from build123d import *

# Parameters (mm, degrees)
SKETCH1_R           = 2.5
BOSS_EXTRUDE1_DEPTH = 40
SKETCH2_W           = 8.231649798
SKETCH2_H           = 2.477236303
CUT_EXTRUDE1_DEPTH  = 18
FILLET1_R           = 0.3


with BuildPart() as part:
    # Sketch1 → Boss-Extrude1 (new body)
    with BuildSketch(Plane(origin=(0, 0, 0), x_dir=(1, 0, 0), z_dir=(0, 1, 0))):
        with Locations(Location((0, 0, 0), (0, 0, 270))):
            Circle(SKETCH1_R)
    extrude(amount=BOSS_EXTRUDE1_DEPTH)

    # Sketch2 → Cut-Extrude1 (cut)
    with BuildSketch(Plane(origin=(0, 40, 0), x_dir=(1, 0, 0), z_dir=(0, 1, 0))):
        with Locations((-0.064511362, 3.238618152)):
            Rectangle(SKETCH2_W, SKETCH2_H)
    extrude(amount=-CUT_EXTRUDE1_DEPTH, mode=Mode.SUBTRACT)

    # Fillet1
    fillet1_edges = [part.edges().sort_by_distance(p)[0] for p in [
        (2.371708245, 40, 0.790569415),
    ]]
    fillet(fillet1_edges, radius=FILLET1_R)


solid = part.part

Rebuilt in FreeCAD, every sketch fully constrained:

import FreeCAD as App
import Part
import Sketcher
from FreeCAD import Vector


def edges_at(feature, points):
    """Names of the edges that pass closest to the given points."""
    edges = feature.Shape.Edges
    near = lambda p: min(range(len(edges)), key=lambda i: edges[i].distToShape(Part.Vertex(*p))[0])
    return sorted({f"Edge{near(p) + 1}" for p in points})

doc = App.newDocument("Part")
params = doc.addObject("Spreadsheet::Sheet", "Params")
for row, (alias, value) in enumerate([
    ("sketch1_diameter", "5 mm"),
    ("pad1_length", "40 mm"),
    ("pocket1_length", "18 mm"),
    ("fillet_radius", "0.3 mm"),
], start=1):
    params.set(f"A{row}", alias)
    params.set(f"B{row}", "=" + value)
    params.setAlias(f"B{row}", alias)

body = doc.addObject("PartDesign::Body", "Body")

# Sketch on XZ plane
sketch1 = doc.addObject("Sketcher::SketchObject", "Sketch")
body.addObject(sketch1)
sketch1.AttachmentSupport = (doc.XZ_Plane, [""])
sketch1.MapMode = "FlatFace"
sketch1.addGeometry(Part.Circle(Vector(0, 0, 0), Vector(0, 0, 1), 2.5), False)
sketch1.addConstraint(Sketcher.Constraint("Coincident", 0, 3, -1, 1))
sketch1.addConstraint(Sketcher.Constraint("Diameter", 0, 5.0))
sketch1.setExpression("Constraints[1]", "Params.sketch1_diameter")
pad1 = doc.addObject("PartDesign::Pad", "Pad")
body.addObject(pad1)
pad1.Profile = sketch1
pad1.setExpression("Length", "Params.pad1_length")
pad1.Reversed = True

# Sketch on XZ plane
sketch2 = doc.addObject("Sketcher::SketchObject", "Sketch001")
body.addObject(sketch2)
sketch2.AttachmentSupport = (doc.XZ_Plane, [""])
sketch2.MapMode = "FlatFace"
sketch2.AttachmentOffset = App.Placement(Vector(0, 0, -40), App.Rotation())
sketch2.addGeometry(Part.LineSegment(Vector(-4.2, -4.5, 0), Vector(-4.2, -2, 0)), False)
sketch2.addGeometry(Part.LineSegment(Vector(-4.2, -2, 0), Vector(4.1, -2, 0)), False)
sketch2.addGeometry(Part.LineSegment(Vector(4.1, -2, 0), Vector(4.1, -4.5, 0)), False)
sketch2.addGeometry(Part.LineSegment(Vector(4.1, -4.5, 0), Vector(-4.2, -4.5, 0)), False)
sketch2.addConstraint(Sketcher.Constraint("Coincident", 0, 2, 1, 1))
sketch2.addConstraint(Sketcher.Constraint("Coincident", 1, 2, 2, 1))
sketch2.addConstraint(Sketcher.Constraint("Coincident", 2, 2, 3, 1))
sketch2.addConstraint(Sketcher.Constraint("Coincident", 3, 2, 0, 1))
sketch2.addConstraint(Sketcher.Constraint("Vertical", 0))
sketch2.addConstraint(Sketcher.Constraint("Horizontal", 1))
sketch2.addConstraint(Sketcher.Constraint("Vertical", 2))
sketch2.addConstraint(Sketcher.Constraint("Horizontal", 3))
sketch2.addConstraint(Sketcher.Constraint("DistanceY", 0, 2, -1, 1, 2.0))
sketch2.addConstraint(Sketcher.Constraint("DistanceX", 1, 1, 1, 2, 8.23165))
sketch2.addConstraint(Sketcher.Constraint("DistanceY", 0, 1, 0, 2, 2.477236))
sketch2.addConstraint(Sketcher.Constraint("DistanceX", 0, 2, -1, 1, 4.180336))
pocket1 = doc.addObject("PartDesign::Pocket", "Pocket")
body.addObject(pocket1)
pocket1.Profile = sketch2
pocket1.setExpression("Length", "Params.pocket1_length")
pocket1.Reversed = True
doc.recompute()

fillet = doc.addObject("PartDesign::Fillet", "Fillet")
body.addObject(fillet)
fillet.Base = (pocket1, edges_at(pocket1, [(2.372, 40, 0.791)]))
fillet.setExpression("Radius", "Params.fillet_radius")

doc.recompute()
